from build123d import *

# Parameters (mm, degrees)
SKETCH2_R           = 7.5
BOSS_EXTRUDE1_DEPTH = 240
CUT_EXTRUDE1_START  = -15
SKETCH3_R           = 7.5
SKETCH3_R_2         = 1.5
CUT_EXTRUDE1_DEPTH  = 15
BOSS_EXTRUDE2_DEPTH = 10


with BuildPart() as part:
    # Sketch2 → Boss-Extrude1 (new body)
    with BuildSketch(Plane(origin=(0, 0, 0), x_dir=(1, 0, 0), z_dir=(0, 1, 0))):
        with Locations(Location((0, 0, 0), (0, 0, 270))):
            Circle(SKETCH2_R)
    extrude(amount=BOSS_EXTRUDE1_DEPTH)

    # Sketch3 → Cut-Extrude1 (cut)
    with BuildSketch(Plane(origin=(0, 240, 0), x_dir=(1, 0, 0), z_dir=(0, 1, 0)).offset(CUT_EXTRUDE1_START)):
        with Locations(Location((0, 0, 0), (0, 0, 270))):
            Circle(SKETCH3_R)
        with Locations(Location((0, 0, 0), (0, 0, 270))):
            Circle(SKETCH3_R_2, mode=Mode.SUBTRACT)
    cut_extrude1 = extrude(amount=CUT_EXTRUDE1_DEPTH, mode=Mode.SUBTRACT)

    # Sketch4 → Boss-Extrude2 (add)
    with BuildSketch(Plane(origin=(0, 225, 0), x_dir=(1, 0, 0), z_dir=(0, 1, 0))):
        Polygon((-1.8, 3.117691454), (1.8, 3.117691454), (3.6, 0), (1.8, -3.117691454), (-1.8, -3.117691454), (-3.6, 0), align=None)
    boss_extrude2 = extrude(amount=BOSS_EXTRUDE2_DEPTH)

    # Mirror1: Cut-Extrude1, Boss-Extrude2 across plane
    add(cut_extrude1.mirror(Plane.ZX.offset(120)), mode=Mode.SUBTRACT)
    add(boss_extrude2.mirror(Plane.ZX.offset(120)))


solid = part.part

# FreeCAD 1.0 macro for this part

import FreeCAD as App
import Part
import Sketcher
from FreeCAD import Vector
Q = App.Units.Quantity

doc = App.newDocument("Part")
body = doc.addObject("PartDesign::Body", "Body")

sketch1 = doc.addObject("Sketcher::SketchObject", "Sketch")
body.addObject(sketch1)
sketch1.AttachmentSupport = (doc.XZ_Plane, [""])
sketch1.MapMode = "FlatFace"
sketch1.addGeometry(Part.Circle(Vector(0, 0, 0), Vector(0, 0, 1), 8), False)
sketch1.addConstraint([
    Sketcher.Constraint("Coincident", 0, 3, -1, 1),
    Sketcher.Constraint("Diameter", 0, Q("15 mm")),
])
pad1 = doc.addObject("PartDesign::Pad", "Pad")
body.addObject(pad1)
pad1.Profile = sketch1
pad1.Length = 240
pad1.Reversed = True

sketch2 = doc.addObject("Sketcher::SketchObject", "Sketch001")
body.addObject(sketch2)
sketch2.AttachmentSupport = (doc.XZ_Plane, [""])
sketch2.MapMode = "FlatFace"
sketch2.AttachmentOffset = App.Placement(Vector(0, 0, -225), App.Rotation())
sketch2.addGeometry([
    Part.Circle(Vector(0, 0, 0), Vector(0, 0, 1), 7.5),
    Part.Circle(Vector(0, 0, 0), Vector(0, 0, 1), 1.5),
], False)
sketch2.addConstraint([
    Sketcher.Constraint("Coincident", 0, 3, -1, 1),
    Sketcher.Constraint("Coincident", 1, 3, -1, 1),
    Sketcher.Constraint("Diameter", 0, Q("15 mm")),
    Sketcher.Constraint("Diameter", 1, Q("3 mm")),
])
pocket1 = doc.addObject("PartDesign::Pocket", "Pocket")
body.addObject(pocket1)
pocket1.Profile = sketch2
pocket1.Length = 15

sketch3 = doc.addObject("Sketcher::SketchObject", "Sketch002")
body.addObject(sketch3)
sketch3.AttachmentSupport = (doc.XZ_Plane, [""])
sketch3.MapMode = "FlatFace"
sketch3.AttachmentOffset = App.Placement(Vector(0, 0, -225), App.Rotation())
sketch3.addGeometry([
    Part.LineSegment(Vector(1.8, -3.1, 0), Vector(-1.8, -3.1, 0)),
    Part.LineSegment(Vector(-1.8, -3.1, 0), Vector(-3.6, 0, 0)),
    Part.LineSegment(Vector(-3.6, 0, 0), Vector(-1.8, 3.1, 0)),
    Part.LineSegment(Vector(-1.8, 3.1, 0), Vector(1.8, 3.1, 0)),
    Part.LineSegment(Vector(1.8, 3.1, 0), Vector(3.6, 0, 0)),
    Part.LineSegment(Vector(3.6, 0, 0), Vector(1.8, -3.1, 0)),
], False)
sketch3.addConstraint([
    Sketcher.Constraint("Coincident", 0, 2, 1, 1),
    Sketcher.Constraint("Coincident", 1, 2, 2, 1),
    Sketcher.Constraint("Coincident", 2, 2, 3, 1),
    Sketcher.Constraint("Coincident", 3, 2, 4, 1),
    Sketcher.Constraint("Coincident", 4, 2, 5, 1),
    Sketcher.Constraint("Coincident", 5, 2, 0, 1),
    Sketcher.Constraint("Horizontal", 0),
    Sketcher.Constraint("Horizontal", 3),
    Sketcher.Constraint("Symmetric", 0, 2, 3, 2, -1, 1),
    Sketcher.Constraint("Symmetric", 1, 2, 4, 2, -1, 1),
    Sketcher.Constraint("PointOnObject", 1, 2, -1),
    Sketcher.Constraint("Parallel", 2, 5),
    Sketcher.Constraint("Vertical", 0, 2, 2, 2),
    Sketcher.Constraint("Angle", 1, Q("120 deg")),
    Sketcher.Constraint("DistanceX", 0, 2, 0, 1, Q("3.6 mm")),
    Sketcher.Constraint("Distance", 1, Q("3.6 mm")),
])
pad2 = doc.addObject("PartDesign::Pad", "Pad001")
body.addObject(pad2)
pad2.Profile = sketch3
pad2.Length = 10
pad2.Reversed = True
doc.recompute()

datumplane = doc.addObject("PartDesign::Plane", "DatumPlane")
body.addObject(datumplane)
datumplane.AttachmentSupport = (doc.XZ_Plane, [""])
datumplane.MapMode = "FlatFace"
datumplane.AttachmentOffset = App.Placement(Vector(0, 0, -120), App.Rotation())
mirrored = doc.addObject("PartDesign::Mirrored", "Mirrored")
body.addObject(mirrored)
mirrored.Originals = [pocket1, pad2]
mirrored.MirrorPlane = (datumplane, [""])
body.Tip = mirrored

doc.recompute()
